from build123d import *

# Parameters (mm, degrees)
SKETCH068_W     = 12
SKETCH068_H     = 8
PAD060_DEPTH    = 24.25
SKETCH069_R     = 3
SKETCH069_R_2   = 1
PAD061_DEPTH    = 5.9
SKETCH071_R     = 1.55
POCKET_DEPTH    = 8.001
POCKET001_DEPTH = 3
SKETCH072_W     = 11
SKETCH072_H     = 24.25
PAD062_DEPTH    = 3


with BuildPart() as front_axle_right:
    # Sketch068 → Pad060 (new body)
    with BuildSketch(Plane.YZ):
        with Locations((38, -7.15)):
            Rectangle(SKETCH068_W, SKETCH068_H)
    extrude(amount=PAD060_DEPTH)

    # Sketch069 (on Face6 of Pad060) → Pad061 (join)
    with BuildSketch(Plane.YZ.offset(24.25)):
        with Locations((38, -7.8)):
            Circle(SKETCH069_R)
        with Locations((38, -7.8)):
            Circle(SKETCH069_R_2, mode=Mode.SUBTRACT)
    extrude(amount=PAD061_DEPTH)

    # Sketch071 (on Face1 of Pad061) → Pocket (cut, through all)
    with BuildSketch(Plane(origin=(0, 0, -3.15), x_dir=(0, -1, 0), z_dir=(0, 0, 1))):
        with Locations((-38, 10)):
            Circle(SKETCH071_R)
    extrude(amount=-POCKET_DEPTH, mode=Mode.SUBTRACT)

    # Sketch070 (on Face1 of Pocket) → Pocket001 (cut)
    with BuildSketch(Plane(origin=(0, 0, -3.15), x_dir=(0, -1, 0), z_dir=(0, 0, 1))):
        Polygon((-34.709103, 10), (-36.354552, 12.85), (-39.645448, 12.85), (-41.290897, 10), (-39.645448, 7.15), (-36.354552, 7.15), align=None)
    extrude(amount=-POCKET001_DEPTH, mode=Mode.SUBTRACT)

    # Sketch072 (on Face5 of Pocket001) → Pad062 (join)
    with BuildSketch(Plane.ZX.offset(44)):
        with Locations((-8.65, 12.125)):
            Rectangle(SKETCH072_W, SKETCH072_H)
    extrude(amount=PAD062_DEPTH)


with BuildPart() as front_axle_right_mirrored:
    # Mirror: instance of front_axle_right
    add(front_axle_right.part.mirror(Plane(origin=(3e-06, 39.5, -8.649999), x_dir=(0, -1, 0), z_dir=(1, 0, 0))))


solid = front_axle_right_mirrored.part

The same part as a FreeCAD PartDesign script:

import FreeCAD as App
import Part
import Sketcher
Q = App.Units.Quantity

doc = App.newDocument("Part")
body = doc.addObject("PartDesign::Body", "Body")

# Sketch on YZ plane
sketch1 = body.newObject("Sketcher::SketchObject", "Sketch")
sketch1.AttachmentSupport = (doc.getObject("YZ_Plane"), [""])
sketch1.MapMode = "FlatFace"
sketch1.addGeometry([
    Part.LineSegment(App.Vector(32, -3, 0), App.Vector(32, -11, 0)),
    Part.LineSegment(App.Vector(32, -11, 0), App.Vector(44, -11, 0)),
    Part.LineSegment(App.Vector(44, -11, 0), App.Vector(44, -3, 0)),
    Part.LineSegment(App.Vector(44, -3, 0), App.Vector(32, -3, 0)),
], False)
sketch1.addConstraint([
    Sketcher.Constraint("Coincident", 0, 2, 1, 1),
    Sketcher.Constraint("Coincident", 1, 2, 2, 1),
    Sketcher.Constraint("Coincident", 2, 2, 3, 1),
    Sketcher.Constraint("Coincident", 3, 2, 0, 1),
    Sketcher.Constraint("Vertical", 0),
    Sketcher.Constraint("Horizontal", 1),
    Sketcher.Constraint("Vertical", 2),
    Sketcher.Constraint("Horizontal", 3),
    Sketcher.Constraint("DistanceX", 1, 1, 1, 2, Q("12 mm")),
    Sketcher.Constraint("DistanceY", 0, 2, 0, 1, Q("8 mm")),
    Sketcher.Constraint("DistanceX", -1, 1, 0, 2, Q("32 mm")),
    Sketcher.Constraint("DistanceY", 0, 2, -1, 1, Q("11.15 mm")),
])
pad1 = body.newObject("PartDesign::Pad", "Pad")
pad1.Profile = sketch1
pad1.Length = 24.25

# Sketch on YZ plane
sketch2 = body.newObject("Sketcher::SketchObject", "Sketch001")
sketch2.AttachmentSupport = (doc.getObject("YZ_Plane"), [""])
sketch2.MapMode = "FlatFace"
sketch2.AttachmentOffset = App.Placement(App.Vector(0, 0, 24.25), App.Rotation())
sketch2.addGeometry([
    Part.Circle(App.Vector(38, -7.8, 0), App.Vector(0, 0, 1), 3),
    Part.Circle(App.Vector(38, -7.8, 0), App.Vector(0, 0, 1), 1),
], False)
sketch2.addConstraint([
    Sketcher.Constraint("Coincident", 1, 3, 0, 3),
    Sketcher.Constraint("Diameter", 0, Q("6 mm")),
    Sketcher.Constraint("Diameter", 1, Q("2 mm")),
    Sketcher.Constraint("DistanceX", -1, 1, 0, 3, Q("38 mm")),
    Sketcher.Constraint("DistanceY", 0, 3, -1, 1, Q("7.8 mm")),
])
pad2 = body.newObject("PartDesign::Pad", "Pad001")
pad2.Profile = sketch2
pad2.Length = 5.9

# Sketch on XY plane
sketch3 = body.newObject("Sketcher::SketchObject", "Sketch002")
sketch3.AttachmentSupport = (doc.getObject("XY_Plane"), [""])
sketch3.MapMode = "FlatFace"
sketch3.AttachmentOffset = App.Placement(App.Vector(0, 0, -3.15), App.Rotation())
sketch3.addGeometry(Part.Circle(App.Vector(10, 38, 0), App.Vector(0, 0, 1), 1.6), False)
sketch3.addConstraint([
    Sketcher.Constraint("Diameter", 0, Q("3.1 mm")),
    Sketcher.Constraint("DistanceX", -1, 1, 0, 3, Q("10 mm")),
    Sketcher.Constraint("DistanceY", -1, 1, 0, 3, Q("38 mm")),
])
pocket1 = body.newObject("PartDesign::Pocket", "Pocket")
pocket1.Profile = sketch3
pocket1.Type = "ThroughAll"

# Sketch on XY plane
sketch4 = body.newObject("Sketcher::SketchObject", "Sketch003")
sketch4.AttachmentSupport = (doc.getObject("XY_Plane"), [""])
sketch4.MapMode = "FlatFace"
sketch4.AttachmentOffset = App.Placement(App.Vector(0, 0, -3.15), App.Rotation())
sketch4.addGeometry([
    Part.LineSegment(App.Vector(10, 34.7, 0), App.Vector(12.8, 36.4, 0)),  # 0
    Part.LineSegment(App.Vector(12.8, 36.4, 0), App.Vector(12.8, 39.6, 0)),  # 1
    Part.LineSegment(App.Vector(12.8, 39.6, 0), App.Vector(10, 41.3, 0)),  # 2
    Part.LineSegment(App.Vector(10, 41.3, 0), App.Vector(7.2, 39.6, 0)),  # 3
    Part.LineSegment(App.Vector(7.2, 39.6, 0), App.Vector(7.2, 36.4, 0)),  # 4
    Part.LineSegment(App.Vector(7.2, 36.4, 0), App.Vector(10, 34.7, 0)),  # 5
], False)
sketch4.addConstraint([
    Sketcher.Constraint("Coincident", 0, 2, 1, 1),
    Sketcher.Constraint("Coincident", 1, 2, 2, 1),
    Sketcher.Constraint("Coincident", 2, 2, 3, 1),
    Sketcher.Constraint("Coincident", 3, 2, 4, 1),
    Sketcher.Constraint("Coincident", 4, 2, 5, 1),
    Sketcher.Constraint("Coincident", 5, 2, 0, 1),
    Sketcher.Constraint("Vertical", 1),
    Sketcher.Constraint("Vertical", 4),
    Sketcher.Constraint("Parallel", 0, 3),
    Sketcher.Constraint("Parallel", 2, 5),
    Sketcher.Constraint("Horizontal", 1, 2, 3, 2),
    Sketcher.Constraint("Horizontal", 0, 2, 4, 2),
    Sketcher.Constraint("Vertical", 2, 2, 5, 2),
    Sketcher.Constraint("Angle", 0, Q("30.000011 deg")),
    Sketcher.Constraint("DistanceX", -1, 1, 2, 2, Q("10 mm")),
    Sketcher.Constraint("DistanceX", 3, 2, 1, 2, Q("5.7 mm")),
    Sketcher.Constraint("DistanceY", 1, 1, 1, 2, Q("3.290896 mm")),
    Sketcher.Constraint("DistanceY", -1, 1, 0, 2, Q("36.354552 mm")),
])
pocket2 = body.newObject("PartDesign::Pocket", "Pocket001")
pocket2.Profile = sketch4
pocket2.Length = 3

# Sketch on XZ plane
sketch5 = body.newObject("Sketcher::SketchObject", "Sketch004")
sketch5.AttachmentSupport = (doc.getObject("XZ_Plane"), [""])
sketch5.MapMode = "FlatFace"
sketch5.AttachmentOffset = App.Placement(App.Vector(0, 0, -44), App.Rotation())
sketch5.addGeometry([
    Part.LineSegment(App.Vector(24, -14, 0), App.Vector(0, -14, 0)),
    Part.LineSegment(App.Vector(0, -14, 0), App.Vector(0, -3, 0)),
    Part.LineSegment(App.Vector(0, -3, 0), App.Vector(24, -3, 0)),
    Part.LineSegment(App.Vector(24, -3, 0), App.Vector(24, -14, 0)),
], False)
sketch5.addConstraint([
    Sketcher.Constraint("Coincident", 0, 2, 1, 1),
    Sketcher.Constraint("Coincident", 1, 2, 2, 1),
    Sketcher.Constraint("Coincident", 2, 2, 3, 1),
    Sketcher.Constraint("Coincident", 3, 2, 0, 1),
    Sketcher.Constraint("Horizontal", 0),
    Sketcher.Constraint("Vertical", 1),
    Sketcher.Constraint("Horizontal", 2),
    Sketcher.Constraint("Vertical", 3),
    Sketcher.Constraint("PointOnObject", 0, 2, -2),
    Sketcher.Constraint("DistanceY", 1, 1, 1, 2, Q("11 mm")),
    Sketcher.Constraint("DistanceX", 0, 2, 0, 1, Q("24.25 mm")),
    Sketcher.Constraint("DistanceY", 0, 2, -1, 1, Q("14.15 mm")),
])
pad3 = body.newObject("PartDesign::Pad", "Pad002")
pad3.Profile = sketch5
pad3.Length = 3
pad3.Reversed = True
body2 = doc.addObject("PartDesign::Body", "Body001")
doc.recompute()

mirroring = doc.addObject("Part::Mirroring", "Mirroring")
mirroring.Source = body
mirroring.Base = App.Vector(0.000003, 39.5, -8.649999)
mirroring.Normal = App.Vector(1, 0, 0)
body2.BaseFeature = mirroring
doc.recompute()
body.Visibility = False
mirroring.Visibility = False

doc.recompute()
